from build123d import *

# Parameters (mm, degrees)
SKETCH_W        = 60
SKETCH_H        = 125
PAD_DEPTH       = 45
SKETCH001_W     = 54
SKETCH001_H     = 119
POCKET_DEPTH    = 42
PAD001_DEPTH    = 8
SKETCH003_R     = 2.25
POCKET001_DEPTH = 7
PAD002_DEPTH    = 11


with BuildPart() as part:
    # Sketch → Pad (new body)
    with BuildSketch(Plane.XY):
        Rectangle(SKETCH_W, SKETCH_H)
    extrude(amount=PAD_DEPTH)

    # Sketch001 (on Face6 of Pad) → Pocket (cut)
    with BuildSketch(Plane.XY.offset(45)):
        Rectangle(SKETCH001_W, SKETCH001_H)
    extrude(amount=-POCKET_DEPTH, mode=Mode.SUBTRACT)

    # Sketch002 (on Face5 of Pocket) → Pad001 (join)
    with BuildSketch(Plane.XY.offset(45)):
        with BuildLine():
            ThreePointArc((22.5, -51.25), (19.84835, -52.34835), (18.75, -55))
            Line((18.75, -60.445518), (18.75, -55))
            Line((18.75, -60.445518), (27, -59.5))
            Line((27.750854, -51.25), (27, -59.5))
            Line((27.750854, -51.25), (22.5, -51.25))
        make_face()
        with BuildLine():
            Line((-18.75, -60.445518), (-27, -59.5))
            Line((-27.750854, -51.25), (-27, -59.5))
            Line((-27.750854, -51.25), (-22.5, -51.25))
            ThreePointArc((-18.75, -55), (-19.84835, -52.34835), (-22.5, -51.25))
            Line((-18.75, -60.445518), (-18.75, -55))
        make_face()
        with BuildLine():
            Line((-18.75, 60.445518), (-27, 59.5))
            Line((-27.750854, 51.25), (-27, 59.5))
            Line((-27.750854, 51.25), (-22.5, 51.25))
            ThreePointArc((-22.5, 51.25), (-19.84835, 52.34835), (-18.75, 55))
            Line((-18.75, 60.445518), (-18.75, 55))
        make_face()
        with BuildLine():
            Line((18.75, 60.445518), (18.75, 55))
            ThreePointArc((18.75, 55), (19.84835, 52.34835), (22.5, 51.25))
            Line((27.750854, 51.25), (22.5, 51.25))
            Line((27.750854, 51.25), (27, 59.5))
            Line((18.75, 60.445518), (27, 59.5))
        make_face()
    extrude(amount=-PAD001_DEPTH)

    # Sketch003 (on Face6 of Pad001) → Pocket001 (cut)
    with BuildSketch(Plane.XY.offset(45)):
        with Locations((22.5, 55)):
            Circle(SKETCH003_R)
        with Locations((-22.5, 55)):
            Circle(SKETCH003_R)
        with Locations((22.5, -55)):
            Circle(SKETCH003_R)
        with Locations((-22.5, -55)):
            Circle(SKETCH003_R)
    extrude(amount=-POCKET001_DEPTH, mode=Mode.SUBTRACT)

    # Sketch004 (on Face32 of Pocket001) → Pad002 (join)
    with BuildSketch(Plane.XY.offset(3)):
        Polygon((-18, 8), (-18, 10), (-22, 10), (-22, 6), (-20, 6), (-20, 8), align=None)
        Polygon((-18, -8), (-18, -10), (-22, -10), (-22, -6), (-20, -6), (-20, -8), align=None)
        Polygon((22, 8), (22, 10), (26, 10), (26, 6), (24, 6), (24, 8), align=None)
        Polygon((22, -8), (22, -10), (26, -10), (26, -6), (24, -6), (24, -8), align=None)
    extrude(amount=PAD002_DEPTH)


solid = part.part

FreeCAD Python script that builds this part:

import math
import FreeCAD as App
import Part
import Sketcher

doc = App.newDocument("Part")
body = doc.addObject("PartDesign::Body", "Body")

# Sketch on XY plane
sketch1 = body.newObject("Sketcher::SketchObject", "Sketch")
sketch1.AttachmentSupport = (doc.getObject("XY_Plane"), [""])
sketch1.MapMode = "FlatFace"
sketch1.addGeometry(Part.LineSegment(App.Vector(-30, 62, 0), App.Vector(-30, -62, 0)), False)
sketch1.addGeometry(Part.LineSegment(App.Vector(-30, -62, 0), App.Vector(30, -62, 0)), False)
sketch1.addGeometry(Part.LineSegment(App.Vector(30, -62, 0), App.Vector(30, 62, 0)), False)
sketch1.addGeometry(Part.LineSegment(App.Vector(30, 62, 0), App.Vector(-30, 62, 0)), False)
sketch1.addConstraint(Sketcher.Constraint("Coincident", 0, 2, 1, 1))
sketch1.addConstraint(Sketcher.Constraint("Coincident", 1, 2, 2, 1))
sketch1.addConstraint(Sketcher.Constraint("Coincident", 2, 2, 3, 1))
sketch1.addConstraint(Sketcher.Constraint("Coincident", 3, 2, 0, 1))
sketch1.addConstraint(Sketcher.Constraint("Vertical", 0))
sketch1.addConstraint(Sketcher.Constraint("Horizontal", 1))
sketch1.addConstraint(Sketcher.Constraint("Vertical", 2))
sketch1.addConstraint(Sketcher.Constraint("Horizontal", 3))
sketch1.addConstraint(Sketcher.Constraint("Symmetric", 0, 2, 2, 2, -1, 1))
sketch1.addConstraint(Sketcher.Constraint("DistanceX", 1, 1, 1, 2, 60.0))
sketch1.addConstraint(Sketcher.Constraint("DistanceY", 0, 2, 0, 1, 125.0))
pad1 = body.newObject("PartDesign::Pad", "Pad")
pad1.Profile = sketch1
pad1.Length = 45

# Sketch on XY plane
sketch2 = body.newObject("Sketcher::SketchObject", "Sketch001")
sketch2.AttachmentSupport = (doc.getObject("XY_Plane"), [""])
sketch2.MapMode = "FlatFace"
sketch2.AttachmentOffset = App.Placement(App.Vector(0, 0, 45), App.Rotation())
sketch2.addGeometry(Part.LineSegment(App.Vector(-27, 60, 0), App.Vector(-27, -60, 0)), False)
sketch2.addGeometry(Part.LineSegment(App.Vector(-27, -60, 0), App.Vector(27, -60, 0)), False)
sketch2.addGeometry(Part.LineSegment(App.Vector(27, -60, 0), App.Vector(27, 60, 0)), False)
sketch2.addGeometry(Part.LineSegment(App.Vector(27, 60, 0), App.Vector(-27, 60, 0)), False)
sketch2.addConstraint(Sketcher.Constraint("Coincident", 0, 2, 1, 1))
sketch2.addConstraint(Sketcher.Constraint("Coincident", 1, 2, 2, 1))
sketch2.addConstraint(Sketcher.Constraint("Coincident", 2, 2, 3, 1))
sketch2.addConstraint(Sketcher.Constraint("Coincident", 3, 2, 0, 1))
sketch2.addConstraint(Sketcher.Constraint("Vertical", 0))
sketch2.addConstraint(Sketcher.Constraint("Horizontal", 1))
sketch2.addConstraint(Sketcher.Constraint("Vertical", 2))
sketch2.addConstraint(Sketcher.Constraint("Horizontal", 3))
sketch2.addConstraint(Sketcher.Constraint("Symmetric", 0, 2, 2, 2, -1, 1))
sketch2.addConstraint(Sketcher.Constraint("DistanceX", 1, 1, 1, 2, 54.0))
sketch2.addConstraint(Sketcher.Constraint("DistanceY", 0, 2, 0, 1, 119.0))
pocket1 = body.newObject("PartDesign::Pocket", "Pocket")
pocket1.Profile = sketch2
pocket1.Length = 42

# Sketch on XY plane
sketch3 = body.newObject("Sketcher::SketchObject", "Sketch002")
sketch3.AttachmentSupport = (doc.getObject("XY_Plane"), [""])
sketch3.MapMode = "FlatFace"
sketch3.AttachmentOffset = App.Placement(App.Vector(0, 0, 45), App.Rotation())
sketch3.addGeometry(Part.ArcOfCircle(Part.Circle(App.Vector(22.5, -55, 0), App.Vector(0, 0, 1), 3.8), math.radians(90), math.radians(180)), False)
sketch3.addGeometry(Part.LineSegment(App.Vector(18.8, -55, 0), App.Vector(18.8, -60.4, 0)), False)
sketch3.addGeometry(Part.LineSegment(App.Vector(18.8, -60.4, 0), App.Vector(27, -59.5, 0)), False)
sketch3.addGeometry(Part.LineSegment(App.Vector(27, -59.5, 0), App.Vector(27.8, -51.2, 0)), False)
sketch3.addGeometry(Part.LineSegment(App.Vector(27.8, -51.2, 0), App.Vector(22.5, -51.2, 0)), False)
sketch3.addGeometry(Part.LineSegment(App.Vector(-27, -59.5, 0), App.Vector(-18.8, -60.4, 0)), False)
sketch3.addGeometry(Part.LineSegment(App.Vector(-18.8, -60.4, 0), App.Vector(-18.8, -55, 0)), False)
sketch3.addGeometry(Part.ArcOfCircle(Part.Circle(App.Vector(-22.5, -55, 0), App.Vector(0, 0, 1), 3.8), math.radians(0), math.radians(90)), False)
sketch3.addGeometry(Part.LineSegment(App.Vector(-22.5, -51.2, 0), App.Vector(-27.8, -51.2, 0)), False)
sketch3.addGeometry(Part.LineSegment(App.Vector(-27.8, -51.2, 0), App.Vector(-27, -59.5, 0)), False)
sketch3.addGeometry(Part.LineSegment(App.Vector(-18.8, 60.4, 0), App.Vector(-27, 59.5, 0)), False)
sketch3.addGeometry(Part.LineSegment(App.Vector(-27, 59.5, 0), App.Vector(-27.8, 51.2, 0)), False)
sketch3.addGeometry(Part.LineSegment(App.Vector(-27.8, 51.2, 0), App.Vector(-22.5, 51.2, 0)), False)
sketch3.addGeometry(Part.ArcOfCircle(Part.Circle(App.Vector(-22.5, 55, 0), App.Vector(0, 0, 1), 3.8), math.radians(-90), math.radians(0)), False)
sketch3.addGeometry(Part.LineSegment(App.Vector(-18.8, 55, 0), App.Vector(-18.8, 60.4, 0)), False)
sketch3.addGeometry(Part.LineSegment(App.Vector(18.8, 60.4, 0), App.Vector(18.8, 55, 0)), False)
sketch3.addGeometry(Part.ArcOfCircle(Part.Circle(App.Vector(22.5, 55, 0), App.Vector(0, 0, 1), 3.8), math.radians(-180), math.radians(-90)), False)
sketch3.addGeometry(Part.LineSegment(App.Vector(22.5, 51.2, 0), App.Vector(27.8, 51.2, 0)), False)
sketch3.addGeometry(Part.LineSegment(App.Vector(27.8, 51.2, 0), App.Vector(27, 59.5, 0)), False)
sketch3.addGeometry(Part.LineSegment(App.Vector(27, 59.5, 0), App.Vector(18.8, 60.4, 0)), False)
sketch3.addConstraint(Sketcher.Constraint("Tangent", 0, 2, 1, 1))
sketch3.addConstraint(Sketcher.Constraint("Coincident", 1, 2, 2, 1))
sketch3.addConstraint(Sketcher.Constraint("Coincident", 2, 2, 3, 1))
sketch3.addConstraint(Sketcher.Constraint("Coincident", 3, 2, 4, 1))
sketch3.addConstraint(Sketcher.Constraint("Tangent", 4, 2, 0, 1))
sketch3.addConstraint(Sketcher.Constraint("Coincident", 5, 2, 6, 1))
sketch3.addConstraint(Sketcher.Constraint("Tangent", 6, 2, 7, 1))
sketch3.addConstraint(Sketcher.Constraint("Tangent", 7, 2, 8, 1))
sketch3.addConstraint(Sketcher.Constraint("Coincident", 8, 2, 9, 1))
sketch3.addConstraint(Sketcher.Constraint("Coincident", 9, 2, 5, 1))
sketch3.addConstraint(Sketcher.Constraint("Coincident", 10, 2, 11, 1))
sketch3.addConstraint(Sketcher.Constraint("Coincident", 11, 2, 12, 1))
sketch3.addConstraint(Sketcher.Constraint("Tangent", 12, 2, 13, 1))
sketch3.addConstraint(Sketcher.Constraint("Tangent", 13, 2, 14, 1))
sketch3.addConstraint(Sketcher.Constraint("Coincident", 14, 2, 10, 1))
sketch3.addConstraint(Sketcher.Constraint("Tangent", 15, 2, 16, 1))
sketch3.addConstraint(Sketcher.Constraint("Tangent", 16, 2, 17, 1))
sketch3.addConstraint(Sketcher.Constraint("Coincident", 17, 2, 18, 1))
sketch3.addConstraint(Sketcher.Constraint("Coincident", 18, 2, 19, 1))
sketch3.addConstraint(Sketcher.Constraint("Coincident", 19, 2, 15, 1))
sketch3.addConstraint(Sketcher.Constraint("Vertical", 1))
sketch3.addConstraint(Sketcher.Constraint("Horizontal", 4))
sketch3.addConstraint(Sketcher.Constraint("Vertical", 6))
sketch3.addConstraint(Sketcher.Constraint("Horizontal", 8))
sketch3.addConstraint(Sketcher.Constraint("Horizontal", 12))
sketch3.addConstraint(Sketcher.Constraint("Vertical", 14))
sketch3.addConstraint(Sketcher.Constraint("Vertical", 15))
sketch3.addConstraint(Sketcher.Constraint("Horizontal", 17))
sketch3.addConstraint(Sketcher.Constraint("Equal", 0, 7))
sketch3.addConstraint(Sketcher.Constraint("Equal", 7, 13))
sketch3.addConstraint(Sketcher.Constraint("Equal", 13, 16))
sketch3.addConstraint(Sketcher.Constraint("Symmetric", 0, 3, 13, 3, -1, 1))
sketch3.addConstraint(Sketcher.Constraint("Symmetric", 7, 3, 16, 3, -1, 1))
sketch3.addConstraint(Sketcher.Constraint("Symmetric", 2, 2, 10, 2, -1, 1))
sketch3.addConstraint(Sketcher.Constraint("Symmetric", 9, 2, 18, 2, -1, 1))
sketch3.addConstraint(Sketcher.Constraint("Symmetric", 0, 3, 7, 3, -2))
sketch3.addConstraint(Sketcher.Constraint("Symmetric", 2, 2, 9, 2, -2))
sketch3.addConstraint(Sketcher.Constraint("Parallel", 2, 10))
sketch3.addConstraint(Sketcher.Constraint("Parallel", 3, 11))
sketch3.addConstraint(Sketcher.Constraint("Parallel", 9, 18))
sketch3.addConstraint(Sketcher.Constraint("Parallel", 5, 19))
sketch3.addConstraint(Sketcher.Constraint("Horizontal", 1, 2, 5, 2))
sketch3.addConstraint(Sketcher.Constraint("Vertical", 8, 2, 11, 2))
sketch3.addConstraint(Sketcher.Constraint("Radius", 0, 3.750001))
sketch3.addConstraint(Sketcher.Constraint("DistanceY", 0, 3, -1, 1, 55.000001))
sketch3.addConstraint(Sketcher.Constraint("DistanceX", -1, 1, 2, 2, 27.0))
sketch3.addConstraint(Sketcher.Constraint("DistanceX", 12, 2, 16, 3, 45.000001))
sketch3.addConstraint(Sketcher.Constraint("DistanceY", 2, 2, -1, 1, 59.5))
sketch3.addConstraint(Sketcher.Constraint("Distance", 3, 8.284098))
sketch3.addConstraint(Sketcher.Constraint("DistanceY", 1, 2, 1, 1, 5.445518))
pad2 = body.newObject("PartDesign::Pad", "Pad001")
pad2.Profile = sketch3
pad2.Length = 8
pad2.Reversed = True

# Sketch on XY plane
sketch4 = body.newObject("Sketcher::SketchObject", "Sketch003")
sketch4.AttachmentSupport = (doc.getObject("XY_Plane"), [""])
sketch4.MapMode = "FlatFace"
sketch4.AttachmentOffset = App.Placement(App.Vector(0, 0, 45), App.Rotation())
sketch4.addGeometry(Part.Circle(App.Vector(22.5, 55, 0), App.Vector(0, 0, 1), 2.2), False)
sketch4.addGeometry(Part.Circle(App.Vector(-22.5, 55, 0), App.Vector(0, 0, 1), 2.2), False)
sketch4.addGeometry(Part.Circle(App.Vector(22.5, -55, 0), App.Vector(0, 0, 1), 2.2), False)
sketch4.addGeometry(Part.Circle(App.Vector(-22.5, -55, 0), App.Vector(0, 0, 1), 2.2), False)
sketch4.addConstraint(Sketcher.Constraint("Equal", 0, 1))
sketch4.addConstraint(Sketcher.Constraint("Equal", 1, 2))
sketch4.addConstraint(Sketcher.Constraint("Equal", 2, 3))
sketch4.addConstraint(Sketcher.Constraint("Symmetric", 1, 3, 2, 3, -1, 1))
sketch4.addConstraint(Sketcher.Constraint("Symmetric", 0, 3, 3, 3, -1, 1))
sketch4.addConstraint(Sketcher.Constraint("Symmetric", 0, 3, 1, 3, -2))
sketch4.addConstraint(Sketcher.Constraint("Diameter", 0, 4.5))
sketch4.addConstraint(Sketcher.Constraint("DistanceY", -1, 1, 0, 3, 55.0))
sketch4.addConstraint(Sketcher.Constraint("DistanceX", 1, 3, 0, 3, 45.0))
pocket2 = body.newObject("PartDesign::Pocket", "Pocket001")
pocket2.Profile = sketch4
pocket2.Length = 7

# Sketch on XY plane
sketch5 = body.newObject("Sketcher::SketchObject", "Sketch004")
sketch5.AttachmentSupport = (doc.getObject("XY_Plane"), [""])
sketch5.MapMode = "FlatFace"
sketch5.AttachmentOffset = App.Placement(App.Vector(0, 0, 3), App.Rotation())
sketch5.addGeometry(Part.LineSegment(App.Vector(-18, 8, 0), App.Vector(-18, 10, 0)), False)
sketch5.addGeometry(Part.LineSegment(App.Vector(-18, 10, 0), App.Vector(-22, 10, 0)), False)
sketch5.addGeometry(Part.LineSegment(App.Vector(-22, 10, 0), App.Vector(-22, 6, 0)), False)
sketch5.addGeometry(Part.LineSegment(App.Vector(-22, 6, 0), App.Vector(-20, 6, 0)), False)
sketch5.addGeometry(Part.LineSegment(App.Vector(-20, 6, 0), App.Vector(-20, 8, 0)), False)
sketch5.addGeometry(Part.LineSegment(App.Vector(-20, 8, 0), App.Vector(-18, 8, 0)), False)
sketch5.addGeometry(Part.LineSegment(App.Vector(-18, -10, 0), App.Vector(-18, -8, 0)), False)
sketch5.addGeometry(Part.LineSegment(App.Vector(-18, -8, 0), App.Vector(-20, -8, 0)), False)
sketch5.addGeometry(Part.LineSegment(App.Vector(-20, -8, 0), App.Vector(-20, -6, 0)), False)
sketch5.addGeometry(Part.LineSegment(App.Vector(-20, -6, 0), App.Vector(-22, -6, 0)), False)
sketch5.addGeometry(Part.LineSegment(App.Vector(-22, -6, 0), App.Vector(-22, -10, 0)), False)
sketch5.addGeometry(Part.LineSegment(App.Vector(-22, -10, 0), App.Vector(-18, -10, 0)), False)
sketch5.addGeometry(Part.LineSegment(App.Vector(22, 10, 0), App.Vector(22, 8, 0)), False)
sketch5.addGeometry(Part.LineSegment(App.Vector(22, 8, 0), App.Vector(24, 8, 0)), False)
sketch5.addGeometry(Part.LineSegment(App.Vector(24, 8, 0), App.Vector(24, 6, 0)), False)
sketch5.addGeometry(Part.LineSegment(App.Vector(24, 6, 0), App.Vector(26, 6, 0)), False)
sketch5.addGeometry(Part.LineSegment(App.Vector(26, 6, 0), App.Vector(26, 10, 0)), False)
sketch5.addGeometry(Part.LineSegment(App.Vector(26, 10, 0), App.Vector(22, 10, 0)), False)
sketch5.addGeometry(Part.LineSegment(App.Vector(22, -8, 0), App.Vector(22, -10, 0)), False)
sketch5.addGeometry(Part.LineSegment(App.Vector(22, -10, 0), App.Vector(26, -10, 0)), False)
sketch5.addGeometry(Part.LineSegment(App.Vector(26, -10, 0), App.Vector(26, -6, 0)), False)
sketch5.addGeometry(Part.LineSegment(App.Vector(26, -6, 0), App.Vector(24, -6, 0)), False)
sketch5.addGeometry(Part.LineSegment(App.Vector(24, -6, 0), App.Vector(24, -8, 0)), False)
sketch5.addGeometry(Part.LineSegment(App.Vector(24, -8, 0), App.Vector(22, -8, 0)), False)
sketch5.addConstraint(Sketcher.Constraint("Coincident", 0, 2, 1, 1))
sketch5.addConstraint(Sketcher.Constraint("Coincident", 1, 2, 2, 1))
sketch5.addConstraint(Sketcher.Constraint("Coincident", 2, 2, 3, 1))
sketch5.addConstraint(Sketcher.Constraint("Coincident", 3, 2, 4, 1))
sketch5.addConstraint(Sketcher.Constraint("Coincident", 4, 2, 5, 1))
sketch5.addConstraint(Sketcher.Constraint("Coincident", 5, 2, 0, 1))
sketch5.addConstraint(Sketcher.Constraint("Coincident", 6, 2, 7, 1))
sketch5.addConstraint(Sketcher.Constraint("Coincident", 7, 2, 8, 1))
sketch5.addConstraint(Sketcher.Constraint("Coincident", 8, 2, 9, 1))
sketch5.addConstraint(Sketcher.Constraint("Coincident", 9, 2, 10, 1))
sketch5.addConstraint(Sketcher.Constraint("Coincident", 10, 2, 11, 1))
sketch5.addConstraint(Sketcher.Constraint("Coincident", 11, 2, 6, 1))
sketch5.addConstraint(Sketcher.Constraint("Coincident", 12, 2, 13, 1))
sketch5.addConstraint(Sketcher.Constraint("Coincident", 13, 2, 14, 1))
sketch5.addConstraint(Sketcher.Constraint("Coincident", 14, 2, 15, 1))
sketch5.addConstraint(Sketcher.Constraint("Coincident", 15, 2, 16, 1))
sketch5.addConstraint(Sketcher.Constraint("Coincident", 16, 2, 17, 1))
sketch5.addConstraint(Sketcher.Constraint("Coincident", 17, 2, 12, 1))
sketch5.addConstraint(Sketcher.Constraint("Coincident", 18, 2, 19, 1))
sketch5.addConstraint(Sketcher.Constraint("Coincident", 19, 2, 20, 1))
sketch5.addConstraint(Sketcher.Constraint("Coincident", 20, 2, 21, 1))
sketch5.addConstraint(Sketcher.Constraint("Coincident", 21, 2, 22, 1))
sketch5.addConstraint(Sketcher.Constraint("Coincident", 22, 2, 23, 1))
sketch5.addConstraint(Sketcher.Constraint("Coincident", 23, 2, 18, 1))
sketch5.addConstraint(Sketcher.Constraint("Vertical", 0))
sketch5.addConstraint(Sketcher.Constraint("Horizontal", 1))
sketch5.addConstraint(Sketcher.Constraint("Vertical", 2))
sketch5.addConstraint(Sketcher.Constraint("Horizontal", 3))
sketch5.addConstraint(Sketcher.Constraint("Vertical", 4))
sketch5.addConstraint(Sketcher.Constraint("Horizontal", 5))
sketch5.addConstraint(Sketcher.Constraint("Vertical", 6))
sketch5.addConstraint(Sketcher.Constraint("Horizontal", 7))
sketch5.addConstraint(Sketcher.Constraint("Vertical", 8))
sketch5.addConstraint(Sketcher.Constraint("Horizontal", 9))
sketch5.addConstraint(Sketcher.Constraint("Vertical", 10))
sketch5.addConstraint(Sketcher.Constraint("Horizontal", 11))
sketch5.addConstraint(Sketcher.Constraint("Vertical", 12))
sketch5.addConstraint(Sketcher.Constraint("Horizontal", 13))
sketch5.addConstraint(Sketcher.Constraint("Vertical", 14))
sketch5.addConstraint(Sketcher.Constraint("Horizontal", 15))
sketch5.addConstraint(Sketcher.Constraint("Vertical", 16))
sketch5.addConstraint(Sketcher.Constraint("Horizontal", 17))
sketch5.addConstraint(Sketcher.Constraint("Vertical", 18))
sketch5.addConstraint(Sketcher.Constraint("Horizontal", 19))
sketch5.addConstraint(Sketcher.Constraint("Vertical", 20))
sketch5.addConstraint(Sketcher.Constraint("Horizontal", 21))
sketch5.addConstraint(Sketcher.Constraint("Vertical", 22))
sketch5.addConstraint(Sketcher.Constraint("Horizontal", 23))
sketch5.addConstraint(Sketcher.Constraint("Symmetric", 10, 2, 17, 2, -1, 1))
sketch5.addConstraint(Sketcher.Constraint("Symmetric", 1, 2, 18, 2, -1, 1))
sketch5.addConstraint(Sketcher.Constraint("Symmetric", 1, 2, 17, 2, -2))
sketch5.addConstraint(Sketcher.Constraint("Symmetric", 5, 2, 6, 2, -1))
sketch5.addConstraint(Sketcher.Constraint("Symmetric", 3, 2, 8, 2, -1))
sketch5.addConstraint(Sketcher.Constraint("Symmetric", 15, 2, 20, 2, -1))
sketch5.addConstraint(Sketcher.Constraint("Symmetric", 13, 2, 22, 2, -1))
sketch5.addConstraint(Sketcher.Constraint("Horizontal", 5, 2, 12, 2))
sketch5.addConstraint(Sketcher.Constraint("Horizontal", 3, 2, 14, 2))
sketch5.addConstraint(Sketcher.Constraint("Equal", 3, 5))
sketch5.addConstraint(Sketcher.Constraint("Equal", 9, 13))
sketch5.addConstraint(Sketcher.Constraint("Equal", 13, 15))
sketch5.addConstraint(Sketcher.Constraint("Equal", 23, 0))
sketch5.addConstraint(Sketcher.Constraint("Equal", 19, 2))
sketch5.addConstraint(Sketcher.Constraint("DistanceX", 1, 2, 1, 1, 4.0))
sketch5.addConstraint(Sketcher.Constraint("DistanceX", 0, 2, -1, 1, 18.0))
sketch5.addConstraint(Sketcher.Constraint("DistanceY", -1, 1, 0, 2, 10.0))
pad3 = body.newObject("PartDesign::Pad", "Pad002")
pad3.Profile = sketch5
pad3.Length = 11

doc.recompute()
